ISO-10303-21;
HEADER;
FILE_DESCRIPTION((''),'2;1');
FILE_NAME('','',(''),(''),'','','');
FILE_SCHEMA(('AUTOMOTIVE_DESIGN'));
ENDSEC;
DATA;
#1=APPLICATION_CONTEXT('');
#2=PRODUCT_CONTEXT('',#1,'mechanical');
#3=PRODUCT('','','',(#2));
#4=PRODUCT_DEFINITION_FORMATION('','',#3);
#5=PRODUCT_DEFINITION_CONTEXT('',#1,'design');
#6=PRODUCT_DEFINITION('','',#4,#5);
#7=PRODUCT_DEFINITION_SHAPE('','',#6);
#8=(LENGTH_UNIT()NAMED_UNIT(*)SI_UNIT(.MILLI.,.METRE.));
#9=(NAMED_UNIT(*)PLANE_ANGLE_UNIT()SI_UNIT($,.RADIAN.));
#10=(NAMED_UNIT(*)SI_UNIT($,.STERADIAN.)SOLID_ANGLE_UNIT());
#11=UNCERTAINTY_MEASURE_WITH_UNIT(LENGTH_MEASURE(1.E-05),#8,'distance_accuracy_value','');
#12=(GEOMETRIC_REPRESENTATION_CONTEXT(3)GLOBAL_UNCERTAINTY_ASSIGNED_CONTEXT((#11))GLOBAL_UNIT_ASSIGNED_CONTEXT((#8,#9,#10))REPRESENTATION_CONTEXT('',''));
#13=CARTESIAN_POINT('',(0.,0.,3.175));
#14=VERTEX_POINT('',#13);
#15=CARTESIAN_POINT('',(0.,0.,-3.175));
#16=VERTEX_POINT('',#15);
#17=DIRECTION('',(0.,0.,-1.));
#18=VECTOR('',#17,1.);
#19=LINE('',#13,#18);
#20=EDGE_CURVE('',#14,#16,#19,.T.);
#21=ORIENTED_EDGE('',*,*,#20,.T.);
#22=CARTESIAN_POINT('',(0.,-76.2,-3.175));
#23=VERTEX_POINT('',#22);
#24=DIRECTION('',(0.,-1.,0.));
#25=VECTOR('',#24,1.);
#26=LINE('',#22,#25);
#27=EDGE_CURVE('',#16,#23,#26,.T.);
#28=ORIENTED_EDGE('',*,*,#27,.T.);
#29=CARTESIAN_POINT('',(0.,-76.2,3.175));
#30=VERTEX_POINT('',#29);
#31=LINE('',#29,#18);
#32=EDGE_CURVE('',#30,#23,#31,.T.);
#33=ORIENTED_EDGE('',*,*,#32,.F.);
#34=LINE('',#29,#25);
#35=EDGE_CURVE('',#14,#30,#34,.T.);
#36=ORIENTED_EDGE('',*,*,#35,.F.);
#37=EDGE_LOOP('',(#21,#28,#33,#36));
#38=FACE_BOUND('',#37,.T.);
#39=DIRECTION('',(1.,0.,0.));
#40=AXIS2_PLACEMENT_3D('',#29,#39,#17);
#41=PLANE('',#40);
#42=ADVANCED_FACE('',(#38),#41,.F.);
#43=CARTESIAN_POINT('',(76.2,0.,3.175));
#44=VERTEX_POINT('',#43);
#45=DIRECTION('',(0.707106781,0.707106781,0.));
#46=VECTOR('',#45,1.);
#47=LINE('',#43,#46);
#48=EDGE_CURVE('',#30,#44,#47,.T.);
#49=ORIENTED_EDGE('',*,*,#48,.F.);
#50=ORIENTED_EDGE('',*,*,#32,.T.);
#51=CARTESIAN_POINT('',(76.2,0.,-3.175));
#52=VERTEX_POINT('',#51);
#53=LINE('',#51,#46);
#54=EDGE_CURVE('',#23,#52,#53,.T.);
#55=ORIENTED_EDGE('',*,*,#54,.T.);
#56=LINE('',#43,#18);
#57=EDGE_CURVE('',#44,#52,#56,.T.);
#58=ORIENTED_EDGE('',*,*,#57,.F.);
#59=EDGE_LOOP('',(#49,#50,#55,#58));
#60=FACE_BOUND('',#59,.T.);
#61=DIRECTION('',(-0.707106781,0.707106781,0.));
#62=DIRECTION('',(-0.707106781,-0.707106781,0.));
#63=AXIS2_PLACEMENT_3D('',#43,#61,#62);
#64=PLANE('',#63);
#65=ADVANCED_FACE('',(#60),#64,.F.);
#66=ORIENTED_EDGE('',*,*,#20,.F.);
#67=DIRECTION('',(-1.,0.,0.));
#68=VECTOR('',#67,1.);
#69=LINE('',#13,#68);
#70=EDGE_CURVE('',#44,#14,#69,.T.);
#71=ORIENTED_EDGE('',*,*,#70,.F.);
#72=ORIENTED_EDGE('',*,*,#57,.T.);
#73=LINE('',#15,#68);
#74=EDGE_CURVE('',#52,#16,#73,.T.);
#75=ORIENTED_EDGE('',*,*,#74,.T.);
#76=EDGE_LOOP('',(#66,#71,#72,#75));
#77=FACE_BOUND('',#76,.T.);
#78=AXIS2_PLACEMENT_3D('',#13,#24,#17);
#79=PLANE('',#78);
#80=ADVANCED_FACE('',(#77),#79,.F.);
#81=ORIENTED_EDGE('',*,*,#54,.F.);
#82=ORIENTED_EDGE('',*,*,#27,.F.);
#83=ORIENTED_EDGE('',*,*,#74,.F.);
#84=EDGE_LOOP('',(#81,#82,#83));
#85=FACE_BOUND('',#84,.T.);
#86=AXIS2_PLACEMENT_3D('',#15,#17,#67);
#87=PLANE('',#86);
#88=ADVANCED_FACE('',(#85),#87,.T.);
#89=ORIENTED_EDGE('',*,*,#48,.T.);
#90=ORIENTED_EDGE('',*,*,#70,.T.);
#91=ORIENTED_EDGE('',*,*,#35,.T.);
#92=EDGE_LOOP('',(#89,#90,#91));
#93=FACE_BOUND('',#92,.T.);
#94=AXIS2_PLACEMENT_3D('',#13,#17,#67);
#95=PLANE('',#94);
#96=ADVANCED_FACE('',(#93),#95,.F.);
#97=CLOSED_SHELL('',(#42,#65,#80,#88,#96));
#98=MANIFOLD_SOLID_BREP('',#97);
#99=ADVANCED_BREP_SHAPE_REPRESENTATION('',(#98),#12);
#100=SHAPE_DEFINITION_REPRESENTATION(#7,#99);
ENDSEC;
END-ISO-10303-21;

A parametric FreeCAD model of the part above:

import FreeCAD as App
import Part
import Sketcher

V = App.Vector
Q = App.Units.Quantity

doc = App.newDocument("Part")
body = doc.addObject("PartDesign::Body", "Body")

sketch1 = body.newObject("Sketcher::SketchObject", "Sketch")
sketch1.AttachmentSupport = (doc.getObject("XY_Plane"), [""])
sketch1.MapMode = "FlatFace"
sketch1.addGeometry(Part.LineSegment(V(76, 0, 0), V(0, 0, 0)), False)
sketch1.addGeometry(Part.LineSegment(V(0, 0, 0), V(0, -76, 0)), False)
sketch1.addGeometry(Part.LineSegment(V(0, -76, 0), V(76, 0, 0)), False)
sketch1.addConstraint(Sketcher.Constraint("Coincident", 0, 2, 1, 1))
sketch1.addConstraint(Sketcher.Constraint("Coincident", 1, 2, 2, 1))
sketch1.addConstraint(Sketcher.Constraint("Coincident", 2, 2, 0, 1))
sketch1.addConstraint(Sketcher.Constraint("Horizontal", 0))
sketch1.addConstraint(Sketcher.Constraint("Vertical", 1))
sketch1.addConstraint(Sketcher.Constraint("Coincident", 0, 2, -1, 1))
sketch1.addConstraint(Sketcher.Constraint("Equal", 0, 1))
sketch1.addConstraint(Sketcher.Constraint("DistanceX", 0, 2, 0, 1, Q("3 in")))
pad1 = body.newObject("PartDesign::Pad", "Pad")
pad1.Profile = sketch1
pad1.Length = Q("0.25 in")
pad1.Midplane = True

doc.recompute()
